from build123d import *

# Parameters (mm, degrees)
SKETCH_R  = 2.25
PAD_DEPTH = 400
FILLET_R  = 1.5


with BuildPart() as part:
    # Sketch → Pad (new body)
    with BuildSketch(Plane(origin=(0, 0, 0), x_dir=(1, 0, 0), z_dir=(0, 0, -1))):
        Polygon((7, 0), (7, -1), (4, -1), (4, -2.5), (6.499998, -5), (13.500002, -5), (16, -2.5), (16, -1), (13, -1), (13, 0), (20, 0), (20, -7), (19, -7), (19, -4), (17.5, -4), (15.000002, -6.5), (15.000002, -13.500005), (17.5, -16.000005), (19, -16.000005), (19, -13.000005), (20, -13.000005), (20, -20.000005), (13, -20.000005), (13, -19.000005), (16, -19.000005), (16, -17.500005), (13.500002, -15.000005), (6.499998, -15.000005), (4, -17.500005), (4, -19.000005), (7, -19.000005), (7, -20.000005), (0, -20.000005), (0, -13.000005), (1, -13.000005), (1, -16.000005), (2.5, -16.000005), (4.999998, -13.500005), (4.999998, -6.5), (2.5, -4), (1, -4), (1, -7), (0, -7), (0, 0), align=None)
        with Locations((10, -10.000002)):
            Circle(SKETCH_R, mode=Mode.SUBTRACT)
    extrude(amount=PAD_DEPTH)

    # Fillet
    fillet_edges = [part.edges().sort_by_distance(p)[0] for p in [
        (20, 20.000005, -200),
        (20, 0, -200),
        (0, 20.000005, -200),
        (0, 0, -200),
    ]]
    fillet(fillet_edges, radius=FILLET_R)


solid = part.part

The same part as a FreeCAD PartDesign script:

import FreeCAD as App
import Part
import Sketcher


def edges_at(feature, points):
    """Names of the edges that pass closest to the given points."""
    edges = feature.Shape.Edges
    near = lambda p: min(range(len(edges)), key=lambda i: edges[i].distToShape(Part.Vertex(*p))[0])
    return sorted({f"Edge{near(p) + 1}" for p in points})


def add_polygon(sketch, points):
    """Adds a closed chain of lines whose ends are joined by coincident constraints."""
    first, n = sketch.GeometryCount, len(points)
    for a, b in zip(points, points[1:] + points[:1]):
        sketch.addGeometry(Part.LineSegment(App.Vector(*a, 0), App.Vector(*b, 0)), False)
    for i in range(n):
        sketch.addConstraint(Sketcher.Constraint("Coincident", first + i, 2, first + (i + 1) % n, 1))

doc = App.newDocument("Part")
params = doc.addObject("Spreadsheet::Sheet", "Params")
for row, (alias, value) in enumerate([
    ("sketch1_diameter", "4.5 mm"),
    ("sketch1_width", "7 mm"),
    ("sketch1_width2", "1 mm"),
    ("sketch1_width3", "3 mm"),
    ("sketch1_width4", "1.5 mm"),
    ("pad1_length", "400 mm"),
    ("fillet_radius", "1.5 mm"),
], start=1):
    params.set(f"A{row}", alias)
    params.set(f"B{row}", "=" + value)
    params.setAlias(f"B{row}", alias)

body = doc.addObject("PartDesign::Body", "Body")

# Sketch on XY plane
sketch1 = body.newObject("Sketcher::SketchObject", "Sketch")
sketch1.AttachmentSupport = (doc.getObject("XY_Plane"), [""])
sketch1.MapMode = "FlatFace"
add_polygon(sketch1, [(7, 1), (7, 0), (0, 0), (0, 7), (1, 7), (1, 4), (2.5, 4), (5, 6.5), (5, 13.5), (2.5, 16), (1, 16), (1, 13), (0, 13), (0, 20), (7, 20), (7, 19), (4, 19), (4, 17.5), (6.5, 15), (13.5, 15), (16, 17.5), (16, 19), (13, 19), (13, 20), (20, 20), (20, 13), (19, 13), (19, 16), (17.5, 16), (15, 13.5), (15, 6.5), (17.5, 4), (19, 4), (19, 7), (20, 7), (20, 0), (13, 0), (13, 1), (16, 1), (16, 2.5), (13.5, 5), (6.5, 5), (4, 2.5), (4, 1)])  # lines 0-43
sketch1.addGeometry(Part.Circle(App.Vector(10, 10, 0), App.Vector(0, 0, 1), 2.2), False)  # 44
sketch1.addConstraint(Sketcher.Constraint("Vertical", 0))
sketch1.addConstraint(Sketcher.Constraint("Horizontal", 1))
sketch1.addConstraint(Sketcher.Constraint("Vertical", 2))
sketch1.addConstraint(Sketcher.Constraint("Horizontal", 3))
sketch1.addConstraint(Sketcher.Constraint("Vertical", 4))
sketch1.addConstraint(Sketcher.Constraint("Horizontal", 5))
sketch1.addConstraint(Sketcher.Constraint("Vertical", 7))
sketch1.addConstraint(Sketcher.Constraint("Horizontal", 9))
sketch1.addConstraint(Sketcher.Constraint("Vertical", 10))
sketch1.addConstraint(Sketcher.Constraint("Horizontal", 11))
sketch1.addConstraint(Sketcher.Constraint("Vertical", 12))
sketch1.addConstraint(Sketcher.Constraint("Horizontal", 13))
sketch1.addConstraint(Sketcher.Constraint("Vertical", 14))
sketch1.addConstraint(Sketcher.Constraint("Horizontal", 15))
sketch1.addConstraint(Sketcher.Constraint("Vertical", 16))
sketch1.addConstraint(Sketcher.Constraint("Horizontal", 18))
sketch1.addConstraint(Sketcher.Constraint("Vertical", 20))
sketch1.addConstraint(Sketcher.Constraint("Horizontal", 21))
sketch1.addConstraint(Sketcher.Constraint("Vertical", 22))
sketch1.addConstraint(Sketcher.Constraint("Horizontal", 23))
sketch1.addConstraint(Sketcher.Constraint("Vertical", 24))
sketch1.addConstraint(Sketcher.Constraint("Horizontal", 25))
sketch1.addConstraint(Sketcher.Constraint("Vertical", 26))
sketch1.addConstraint(Sketcher.Constraint("Horizontal", 27))
sketch1.addConstraint(Sketcher.Constraint("Vertical", 29))
sketch1.addConstraint(Sketcher.Constraint("Horizontal", 31))
sketch1.addConstraint(Sketcher.Constraint("Vertical", 32))
sketch1.addConstraint(Sketcher.Constraint("Horizontal", 33))
sketch1.addConstraint(Sketcher.Constraint("Vertical", 34))
sketch1.addConstraint(Sketcher.Constraint("Horizontal", 35))
sketch1.addConstraint(Sketcher.Constraint("Vertical", 36))
sketch1.addConstraint(Sketcher.Constraint("Horizontal", 37))
sketch1.addConstraint(Sketcher.Constraint("Vertical", 38))
sketch1.addConstraint(Sketcher.Constraint("Horizontal", 40))
sketch1.addConstraint(Sketcher.Constraint("Vertical", 42))
sketch1.addConstraint(Sketcher.Constraint("Horizontal", 43))
sketch1.addConstraint(Sketcher.Constraint("Coincident", 1, 2, -1, 1))
sketch1.addConstraint(Sketcher.Constraint("PointOnObject", 11, 2, -2))
sketch1.addConstraint(Sketcher.Constraint("PointOnObject", 34, 2, -1))
sketch1.addConstraint(Sketcher.Constraint("Perpendicular", 6, 8))
sketch1.addConstraint(Sketcher.Constraint("Parallel", 8, 17))
sketch1.addConstraint(Sketcher.Constraint("Perpendicular", 17, 19))
sketch1.addConstraint(Sketcher.Constraint("Parallel", 19, 28))
sketch1.addConstraint(Sketcher.Constraint("Perpendicular", 28, 30))
sketch1.addConstraint(Sketcher.Constraint("Parallel", 30, 39))
sketch1.addConstraint(Sketcher.Constraint("Perpendicular", 39, 41))
sketch1.addConstraint(Sketcher.Constraint("Horizontal", 16, 2, 19, 2))
sketch1.addConstraint(Sketcher.Constraint("Horizontal", 15, 2, 20, 2))
sketch1.addConstraint(Sketcher.Constraint("Horizontal", 13, 2, 22, 2))
sketch1.addConstraint(Sketcher.Constraint("Horizontal", 11, 2, 24, 2))
sketch1.addConstraint(Sketcher.Constraint("Horizontal", 9, 2, 26, 2))
sketch1.addConstraint(Sketcher.Constraint("Horizontal", 7, 2, 28, 2))
sketch1.addConstraint(Sketcher.Constraint("Horizontal", 6, 2, 29, 2))
sketch1.addConstraint(Sketcher.Constraint("Horizontal", 5, 2, 30, 2))
sketch1.addConstraint(Sketcher.Constraint("Horizontal", 3, 2, 32, 2))
sketch1.addConstraint(Sketcher.Constraint("Horizontal", 38, 2, 41, 2))
sketch1.addConstraint(Sketcher.Constraint("Horizontal", 37, 2, 42, 2))
sketch1.addConstraint(Sketcher.Constraint("Vertical", 5, 2, 8, 2))
sketch1.addConstraint(Sketcher.Constraint("Vertical", 4, 2, 9, 2))
sketch1.addConstraint(Sketcher.Constraint("Vertical", 0, 2, 13, 2))
sketch1.addConstraint(Sketcher.Constraint("Vertical", 27, 2, 30, 2))
sketch1.addConstraint(Sketcher.Constraint("Vertical", 26, 2, 31, 2))
sketch1.addConstraint(Sketcher.Constraint("Vertical", 24, 2, 33, 2))
sketch1.addConstraint(Sketcher.Constraint("Vertical", 22, 2, 35, 2))
sketch1.addConstraint(Sketcher.Constraint("Vertical", 20, 2, 37, 2))
sketch1.addConstraint(Sketcher.Constraint("Vertical", 18, 2, 39, 2))
sketch1.addConstraint(Sketcher.Constraint("Vertical", 17, 2, 40, 2))
sketch1.addConstraint(Sketcher.Constraint("Equal", 15, 21))
sketch1.addConstraint(Sketcher.Constraint("Equal", 13, 23))
sketch1.addConstraint(Sketcher.Constraint("Equal", 11, 25))
sketch1.addConstraint(Sketcher.Constraint("Equal", 9, 27))
sketch1.addConstraint(Sketcher.Constraint("Equal", 33, 0))
sketch1.addConstraint(Sketcher.Constraint("Equal", 35, 2))
sketch1.addConstraint(Sketcher.Constraint("Equal", 43, 4))
sketch1.addConstraint(Sketcher.Constraint("Equal", 40, 7))
sketch1.addConstraint(Sketcher.Constraint("Equal", 4, 10))
sketch1.addConstraint(Sketcher.Constraint("Equal", 2, 12))
sketch1.addConstraint(Sketcher.Constraint("Equal", 0, 14))
sketch1.addConstraint(Sketcher.Constraint("Equal", 31, 16))
sketch1.addConstraint(Sketcher.Constraint("Equal", 20, 38))
sketch1.addConstraint(Sketcher.Constraint("Equal", 8, 17))
sketch1.addConstraint(Sketcher.Constraint("Diameter", 44, 4.5))
sketch1.addConstraint(Sketcher.Constraint("DistanceX", 1, 2, 1, 1, 7.0))
sketch1.addConstraint(Sketcher.Constraint("DistanceX", 3, 1, 3, 2, 1.0))
sketch1.addConstraint(Sketcher.Constraint("DistanceX", 15, 2, 15, 1, 3.0))
sketch1.addConstraint(Sketcher.Constraint("DistanceX", 5, 1, 5, 2, 1.5))
sketch1.addConstraint(Sketcher.Constraint("DistanceX", -1, 1, 44, 3, 10.0))
sketch1.addConstraint(Sketcher.Constraint("DistanceX", -1, 1, 19, 2, 16.0))
sketch1.addConstraint(Sketcher.Constraint("DistanceY", -1, 1, 39, 2, 5.0))
sketch1.addConstraint(Sketcher.Constraint("DistanceY", -1, 1, 44, 3, 10.000002))
sketch1.setExpression("Constraints[125]", "Params.sketch1_diameter")
sketch1.setExpression("Constraints[126]", "Params.sketch1_width")
sketch1.setExpression("Constraints[127]", "Params.sketch1_width2")
sketch1.setExpression("Constraints[128]", "Params.sketch1_width3")
sketch1.setExpression("Constraints[129]", "Params.sketch1_width4")
pad1 = body.newObject("PartDesign::Pad", "Pad")
pad1.Profile = sketch1
pad1.setExpression("Length", "Params.pad1_length")
pad1.Reversed = True
doc.recompute()

fillet = body.newObject("PartDesign::Fillet", "Fillet")
fillet.Base = (pad1, edges_at(pad1, [
    (20, 20, -200),
    (20, 0, -200),
    (0, 20, -200),
    (0, 0, -200),
]))
fillet.setExpression("Radius", "Params.fillet_radius")

doc.recompute()
